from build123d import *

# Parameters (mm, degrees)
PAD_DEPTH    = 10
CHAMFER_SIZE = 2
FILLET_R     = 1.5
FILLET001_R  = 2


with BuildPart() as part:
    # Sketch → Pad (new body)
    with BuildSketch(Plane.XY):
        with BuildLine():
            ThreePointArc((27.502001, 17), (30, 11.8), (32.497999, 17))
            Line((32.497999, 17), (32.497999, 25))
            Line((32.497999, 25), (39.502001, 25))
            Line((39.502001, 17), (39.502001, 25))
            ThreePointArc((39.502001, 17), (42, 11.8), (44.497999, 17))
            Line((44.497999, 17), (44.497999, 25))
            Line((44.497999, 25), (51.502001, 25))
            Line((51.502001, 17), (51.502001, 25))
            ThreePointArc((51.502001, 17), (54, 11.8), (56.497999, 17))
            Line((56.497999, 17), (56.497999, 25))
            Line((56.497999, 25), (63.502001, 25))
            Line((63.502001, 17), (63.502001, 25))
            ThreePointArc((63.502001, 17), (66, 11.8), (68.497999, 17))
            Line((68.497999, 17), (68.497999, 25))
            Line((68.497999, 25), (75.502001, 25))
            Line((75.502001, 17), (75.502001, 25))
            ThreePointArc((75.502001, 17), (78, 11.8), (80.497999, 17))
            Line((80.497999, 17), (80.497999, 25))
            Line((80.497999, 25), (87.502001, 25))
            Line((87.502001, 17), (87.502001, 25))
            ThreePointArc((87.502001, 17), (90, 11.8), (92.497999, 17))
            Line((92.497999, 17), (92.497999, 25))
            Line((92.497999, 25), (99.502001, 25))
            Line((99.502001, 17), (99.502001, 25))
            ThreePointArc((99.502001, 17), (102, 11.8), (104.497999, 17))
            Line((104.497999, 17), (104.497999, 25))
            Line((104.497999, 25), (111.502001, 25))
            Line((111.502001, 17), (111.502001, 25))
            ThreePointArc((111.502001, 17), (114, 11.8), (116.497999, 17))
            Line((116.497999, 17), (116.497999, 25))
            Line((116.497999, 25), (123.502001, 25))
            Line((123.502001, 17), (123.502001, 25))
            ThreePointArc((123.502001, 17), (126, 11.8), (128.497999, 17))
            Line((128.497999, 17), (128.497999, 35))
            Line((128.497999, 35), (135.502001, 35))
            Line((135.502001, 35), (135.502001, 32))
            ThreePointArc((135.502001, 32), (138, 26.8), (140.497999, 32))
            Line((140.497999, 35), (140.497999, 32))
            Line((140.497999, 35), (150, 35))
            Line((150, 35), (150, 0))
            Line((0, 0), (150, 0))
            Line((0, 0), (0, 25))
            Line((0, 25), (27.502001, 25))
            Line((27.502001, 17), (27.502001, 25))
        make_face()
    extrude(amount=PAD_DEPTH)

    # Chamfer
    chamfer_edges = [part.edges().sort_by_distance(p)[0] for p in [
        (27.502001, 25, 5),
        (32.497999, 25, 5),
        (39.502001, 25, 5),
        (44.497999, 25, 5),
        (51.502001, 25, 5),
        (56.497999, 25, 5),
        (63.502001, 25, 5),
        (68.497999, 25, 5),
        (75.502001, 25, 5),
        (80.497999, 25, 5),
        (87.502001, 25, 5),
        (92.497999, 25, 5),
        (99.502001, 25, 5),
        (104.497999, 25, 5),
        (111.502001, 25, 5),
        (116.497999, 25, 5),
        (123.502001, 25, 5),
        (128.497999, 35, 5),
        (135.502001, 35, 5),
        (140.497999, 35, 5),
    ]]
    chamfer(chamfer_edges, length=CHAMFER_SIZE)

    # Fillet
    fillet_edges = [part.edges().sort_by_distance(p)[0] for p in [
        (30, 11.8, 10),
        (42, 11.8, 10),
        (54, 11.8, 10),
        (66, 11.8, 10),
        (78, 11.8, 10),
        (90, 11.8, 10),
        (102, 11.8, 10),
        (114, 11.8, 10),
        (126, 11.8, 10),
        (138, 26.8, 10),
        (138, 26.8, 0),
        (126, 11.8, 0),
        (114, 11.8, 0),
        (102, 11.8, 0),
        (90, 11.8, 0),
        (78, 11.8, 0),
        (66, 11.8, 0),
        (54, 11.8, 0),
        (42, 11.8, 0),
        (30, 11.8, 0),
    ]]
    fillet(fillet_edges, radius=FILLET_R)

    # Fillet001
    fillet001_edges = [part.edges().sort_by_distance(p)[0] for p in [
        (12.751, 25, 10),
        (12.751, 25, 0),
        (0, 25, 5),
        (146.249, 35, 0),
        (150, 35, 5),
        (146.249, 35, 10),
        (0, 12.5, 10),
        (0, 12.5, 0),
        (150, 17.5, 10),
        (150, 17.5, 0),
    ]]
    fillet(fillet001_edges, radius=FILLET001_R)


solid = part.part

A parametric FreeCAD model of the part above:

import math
import FreeCAD as App
import Part
import Sketcher
Q = App.Units.Quantity


def edges_at(feature, points):
    """Names of the edges that pass closest to the given points."""
    edges = feature.Shape.Edges
    near = lambda p: min(range(len(edges)), key=lambda i: edges[i].distToShape(Part.Vertex(*p))[0])
    return sorted({f"Edge{near(p) + 1}" for p in points})

doc = App.newDocument("Part")
body = doc.addObject("PartDesign::Body", "Body")

sketch1 = body.newObject("Sketcher::SketchObject", "Sketch")
sketch1.AttachmentSupport = (doc.getObject("XY_Plane"), [""])
sketch1.MapMode = "FlatFace"
sketch1.addGeometry([
    Part.ArcOfCircle(Part.Circle(App.Vector(30, 15, 0), App.Vector(0, 0, 1), 3.2), math.radians(141), math.radians(399)),
    Part.LineSegment(App.Vector(27.5, 17, 0), App.Vector(27.5, 25, 0)),
    Part.LineSegment(App.Vector(27.5, 25, 0), App.Vector(0, 25, 0)),
    Part.LineSegment(App.Vector(0, 25, 0), App.Vector(0, 0, 0)),
    Part.LineSegment(App.Vector(0, 0, 0), App.Vector(150, 0, 0)),
    Part.LineSegment(App.Vector(150, 0, 0), App.Vector(150, 35, 0)),
    Part.LineSegment(App.Vector(150, 35, 0), App.Vector(140.5, 35, 0)),
    Part.LineSegment(App.Vector(140.5, 35, 0), App.Vector(140.5, 32, 0)),
    Part.ArcOfCircle(Part.Circle(App.Vector(138, 30, 0), App.Vector(0, 0, 1), 3.2), math.radians(141), math.radians(399)),
    Part.LineSegment(App.Vector(135.5, 32, 0), App.Vector(135.5, 35, 0)),
    Part.LineSegment(App.Vector(135.5, 35, 0), App.Vector(128.5, 35, 0)),
    Part.LineSegment(App.Vector(128.5, 35, 0), App.Vector(128.5, 17, 0)),
    Part.ArcOfCircle(Part.Circle(App.Vector(126, 15, 0), App.Vector(0, 0, 1), 3.2), math.radians(141), math.radians(399)),
    Part.LineSegment(App.Vector(123.5, 17, 0), App.Vector(123.5, 25, 0)),
    Part.LineSegment(App.Vector(123.5, 25, 0), App.Vector(116.5, 25, 0)),
    Part.LineSegment(App.Vector(116.5, 25, 0), App.Vector(116.5, 17, 0)),
    Part.ArcOfCircle(Part.Circle(App.Vector(114, 15, 0), App.Vector(0, 0, 1), 3.2), math.radians(141), math.radians(399)),
    Part.LineSegment(App.Vector(111.5, 17, 0), App.Vector(111.5, 25, 0)),
    Part.LineSegment(App.Vector(111.5, 25, 0), App.Vector(104.5, 25, 0)),
    Part.LineSegment(App.Vector(104.5, 25, 0), App.Vector(104.5, 17, 0)),
    Part.ArcOfCircle(Part.Circle(App.Vector(102, 15, 0), App.Vector(0, 0, 1), 3.2), math.radians(141), math.radians(399)),
    Part.LineSegment(App.Vector(99.5, 17, 0), App.Vector(99.5, 25, 0)),
    Part.LineSegment(App.Vector(99.5, 25, 0), App.Vector(92.5, 25, 0)),
    Part.LineSegment(App.Vector(92.5, 25, 0), App.Vector(92.5, 17, 0)),
    Part.ArcOfCircle(Part.Circle(App.Vector(90, 15, 0), App.Vector(0, 0, 1), 3.2), math.radians(141), math.radians(399)),
    Part.LineSegment(App.Vector(87.5, 17, 0), App.Vector(87.5, 25, 0)),
    Part.LineSegment(App.Vector(87.5, 25, 0), App.Vector(80.5, 25, 0)),
    Part.LineSegment(App.Vector(80.5, 25, 0), App.Vector(80.5, 17, 0)),
    Part.ArcOfCircle(Part.Circle(App.Vector(78, 15, 0), App.Vector(0, 0, 1), 3.2), math.radians(141), math.radians(399)),
    Part.LineSegment(App.Vector(75.5, 17, 0), App.Vector(75.5, 25, 0)),
    Part.LineSegment(App.Vector(75.5, 25, 0), App.Vector(68.5, 25, 0)),
    Part.LineSegment(App.Vector(68.5, 25, 0), App.Vector(68.5, 17, 0)),
    Part.ArcOfCircle(Part.Circle(App.Vector(66, 15, 0), App.Vector(0, 0, 1), 3.2), math.radians(141), math.radians(399)),
    Part.LineSegment(App.Vector(63.5, 17, 0), App.Vector(63.5, 25, 0)),
    Part.LineSegment(App.Vector(63.5, 25, 0), App.Vector(56.5, 25, 0)),
    Part.LineSegment(App.Vector(56.5, 25, 0), App.Vector(56.5, 17, 0)),
    Part.ArcOfCircle(Part.Circle(App.Vector(54, 15, 0), App.Vector(0, 0, 1), 3.2), math.radians(141), math.radians(399)),
    Part.LineSegment(App.Vector(51.5, 17, 0), App.Vector(51.5, 25, 0)),
    Part.LineSegment(App.Vector(51.5, 25, 0), App.Vector(44.5, 25, 0)),
    Part.LineSegment(App.Vector(44.5, 25, 0), App.Vector(44.5, 17, 0)),
    Part.ArcOfCircle(Part.Circle(App.Vector(42, 15, 0), App.Vector(0, 0, 1), 3.2), math.radians(141), math.radians(399)),
    Part.LineSegment(App.Vector(39.5, 17, 0), App.Vector(39.5, 25, 0)),
    Part.LineSegment(App.Vector(39.5, 25, 0), App.Vector(32.5, 25, 0)),
    Part.LineSegment(App.Vector(32.5, 25, 0), App.Vector(32.5, 17, 0)),
], False)
sketch1.addConstraint([
    Sketcher.Constraint("Coincident", 0, 1, 1, 1),
    Sketcher.Constraint("Coincident", 1, 2, 2, 1),
    Sketcher.Constraint("Coincident", 2, 2, 3, 1),
    Sketcher.Constraint("Coincident", 3, 2, 4, 1),
    Sketcher.Constraint("Coincident", 4, 2, 5, 1),
    Sketcher.Constraint("Coincident", 5, 2, 6, 1),
    Sketcher.Constraint("Coincident", 6, 2, 7, 1),
    Sketcher.Constraint("Coincident", 7, 2, 8, 2),
    Sketcher.Constraint("Coincident", 8, 1, 9, 1),
    Sketcher.Constraint("Coincident", 9, 2, 10, 1),
    Sketcher.Constraint("Coincident", 10, 2, 11, 1),
    Sketcher.Constraint("Coincident", 11, 2, 12, 2),
    Sketcher.Constraint("Coincident", 12, 1, 13, 1),
    Sketcher.Constraint("Coincident", 13, 2, 14, 1),
    Sketcher.Constraint("Coincident", 14, 2, 15, 1),
    Sketcher.Constraint("Coincident", 15, 2, 16, 2),
    Sketcher.Constraint("Coincident", 16, 1, 17, 1),
    Sketcher.Constraint("Coincident", 17, 2, 18, 1),
    Sketcher.Constraint("Coincident", 18, 2, 19, 1),
    Sketcher.Constraint("Coincident", 19, 2, 20, 2),
    Sketcher.Constraint("Coincident", 20, 1, 21, 1),
    Sketcher.Constraint("Coincident", 21, 2, 22, 1),
    Sketcher.Constraint("Coincident", 22, 2, 23, 1),
    Sketcher.Constraint("Coincident", 23, 2, 24, 2),
    Sketcher.Constraint("Coincident", 24, 1, 25, 1),
    Sketcher.Constraint("Coincident", 25, 2, 26, 1),
    Sketcher.Constraint("Coincident", 26, 2, 27, 1),
    Sketcher.Constraint("Coincident", 27, 2, 28, 2),
    Sketcher.Constraint("Coincident", 28, 1, 29, 1),
    Sketcher.Constraint("Coincident", 29, 2, 30, 1),
    Sketcher.Constraint("Coincident", 30, 2, 31, 1),
    Sketcher.Constraint("Coincident", 31, 2, 32, 2),
    Sketcher.Constraint("Coincident", 32, 1, 33, 1),
    Sketcher.Constraint("Coincident", 33, 2, 34, 1),
    Sketcher.Constraint("Coincident", 34, 2, 35, 1),
    Sketcher.Constraint("Coincident", 35, 2, 36, 2),
    Sketcher.Constraint("Coincident", 36, 1, 37, 1),
    Sketcher.Constraint("Coincident", 37, 2, 38, 1),
    Sketcher.Constraint("Coincident", 38, 2, 39, 1),
    Sketcher.Constraint("Coincident", 39, 2, 40, 2),
    Sketcher.Constraint("Coincident", 40, 1, 41, 1),
    Sketcher.Constraint("Coincident", 41, 2, 42, 1),
    Sketcher.Constraint("Coincident", 42, 2, 43, 1),
    Sketcher.Constraint("Coincident", 43, 2, 0, 2),
    Sketcher.Constraint("Vertical", 1),
    Sketcher.Constraint("Horizontal", 2),
    Sketcher.Constraint("Vertical", 3),
    Sketcher.Constraint("Horizontal", 4),
    Sketcher.Constraint("Vertical", 5),
    Sketcher.Constraint("Horizontal", 6),
    Sketcher.Constraint("Vertical", 7),
    Sketcher.Constraint("Vertical", 9),
    Sketcher.Constraint("Horizontal", 10),
    Sketcher.Constraint("Vertical", 11),
    Sketcher.Constraint("Vertical", 13),
    Sketcher.Constraint("Horizontal", 14),
    Sketcher.Constraint("Vertical", 15),
    Sketcher.Constraint("Vertical", 17),
    Sketcher.Constraint("Horizontal", 18),
    Sketcher.Constraint("Vertical", 19),
    Sketcher.Constraint("Vertical", 21),
    Sketcher.Constraint("Horizontal", 22),
    Sketcher.Constraint("Vertical", 23),
    Sketcher.Constraint("Vertical", 25),
    Sketcher.Constraint("Horizontal", 26),
    Sketcher.Constraint("Vertical", 27),
    Sketcher.Constraint("Vertical", 29),
    Sketcher.Constraint("Horizontal", 30),
    Sketcher.Constraint("Vertical", 31),
    Sketcher.Constraint("Vertical", 33),
    Sketcher.Constraint("Horizontal", 34),
    Sketcher.Constraint("Vertical", 35),
    Sketcher.Constraint("Vertical", 37),
    Sketcher.Constraint("Horizontal", 38),
    Sketcher.Constraint("Vertical", 39),
    Sketcher.Constraint("Vertical", 41),
    Sketcher.Constraint("Horizontal", 42),
    Sketcher.Constraint("Vertical", 43),
    Sketcher.Constraint("Coincident", 3, 2, -1, 1),
    Sketcher.Constraint("Equal", 0, 8),
    Sketcher.Constraint("Equal", 8, 12),
    Sketcher.Constraint("Equal", 12, 16),
    Sketcher.Constraint("Equal", 16, 20),
    Sketcher.Constraint("Equal", 20, 24),
    Sketcher.Constraint("Equal", 24, 28),
    Sketcher.Constraint("Equal", 28, 32),
    Sketcher.Constraint("Equal", 32, 36),
    Sketcher.Constraint("Equal", 36, 40),
    Sketcher.Constraint("Horizontal", 0, 3, 12, 3),
    Sketcher.Constraint("Horizontal", 12, 3, 16, 3),
    Sketcher.Constraint("Horizontal", 16, 3, 20, 3),
    Sketcher.Constraint("Horizontal", 20, 3, 24, 3),
    Sketcher.Constraint("Horizontal", 24, 3, 28, 3),
    Sketcher.Constraint("Horizontal", 28, 3, 32, 3),
    Sketcher.Constraint("Horizontal", 32, 3, 36, 3),
    Sketcher.Constraint("Horizontal", 36, 3, 40, 3),
    Sketcher.Constraint("Horizontal", 7, 2, 8, 1),
    Sketcher.Constraint("Horizontal", 6, 2, 9, 2),
    Sketcher.Constraint("Horizontal", 0, 1, 11, 2),
    Sketcher.Constraint("Horizontal", 11, 2, 12, 1),
    Sketcher.Constraint("Horizontal", 2, 2, 13, 2),
    Sketcher.Constraint("Horizontal", 12, 1, 15, 2),
    Sketcher.Constraint("Horizontal", 15, 2, 16, 1),
    Sketcher.Constraint("Horizontal", 14, 2, 17, 2),
    Sketcher.Constraint("Horizontal", 16, 1, 19, 2),
    Sketcher.Constraint("Horizontal", 19, 2, 20, 1),
    Sketcher.Constraint("Horizontal", 18, 2, 21, 2),
    Sketcher.Constraint("Horizontal", 20, 1, 23, 2),
    Sketcher.Constraint("Horizontal", 23, 2, 24, 1),
    Sketcher.Constraint("Horizontal", 22, 2, 25, 2),
    Sketcher.Constraint("Horizontal", 24, 1, 27, 2),
    Sketcher.Constraint("Horizontal", 27, 2, 28, 1),
    Sketcher.Constraint("Horizontal", 26, 2, 29, 2),
    Sketcher.Constraint("Horizontal", 28, 1, 31, 2),
    Sketcher.Constraint("Horizontal", 31, 2, 32, 1),
    Sketcher.Constraint("Horizontal", 30, 2, 33, 2),
    Sketcher.Constraint("Horizontal", 32, 1, 35, 2),
    Sketcher.Constraint("Horizontal", 35, 2, 36, 1),
    Sketcher.Constraint("Horizontal", 34, 2, 37, 2),
    Sketcher.Constraint("Horizontal", 36, 1, 39, 2),
    Sketcher.Constraint("Horizontal", 39, 2, 40, 1),
    Sketcher.Constraint("Horizontal", 38, 2, 41, 2),
    Sketcher.Constraint("Horizontal", 40, 1, 43, 2),
    Sketcher.Constraint("Equal", 10, 14),
    Sketcher.Constraint("Equal", 14, 18),
    Sketcher.Constraint("Equal", 18, 22),
    Sketcher.Constraint("Equal", 22, 26),
    Sketcher.Constraint("Equal", 26, 30),
    Sketcher.Constraint("Equal", 30, 34),
    Sketcher.Constraint("Equal", 34, 38),
    Sketcher.Constraint("Equal", 38, 42),
    Sketcher.Constraint("Radius", 0, Q("3.2 mm")),
    Sketcher.Constraint("DistanceX", 4, 1, 4, 2, Q("150 mm")),
    Sketcher.Constraint("DistanceY", 1, 1, 1, 2, Q("8 mm")),
    Sketcher.Constraint("DistanceY", 3, 2, 3, 1, Q("25 mm")),
    Sketcher.Constraint("DistanceY", 5, 1, 5, 2, Q("35 mm")),
    Sketcher.Constraint("DistanceY", 7, 2, 7, 1, Q("3 mm")),
    Sketcher.Constraint("DistanceX", -1, 1, 0, 3, Q("30 mm")),
    Sketcher.Constraint("DistanceY", -1, 1, 0, 3, Q("15 mm")),
    Sketcher.Constraint("DistanceX", -1, 1, 8, 3, Q("138 mm")),
    Sketcher.Constraint("DistanceY", -1, 1, 8, 3, Q("30 mm")),
])
pad1 = body.newObject("PartDesign::Pad", "Pad")
pad1.Profile = sketch1
pad1.Length = 10
doc.recompute()

chamfer = body.newObject("PartDesign::Chamfer", "Chamfer")
chamfer.Base = (pad1, edges_at(pad1, [
    (27.502, 25, 5),
    (32.498, 25, 5),
    (39.502, 25, 5),
    (44.498, 25, 5),
    (51.502, 25, 5),
    (56.498, 25, 5),
    (63.502, 25, 5),
    (68.498, 25, 5),
    (75.502, 25, 5),
    (80.498, 25, 5),
    (87.502, 25, 5),
    (92.498, 25, 5),
    (99.502, 25, 5),
    (104.498, 25, 5),
    (111.502, 25, 5),
    (116.498, 25, 5),
    (123.502, 25, 5),
    (128.498, 35, 5),
    (135.502, 35, 5),
    (140.498, 35, 5),
]))
chamfer.Size = 2
doc.recompute()

fillet = body.newObject("PartDesign::Fillet", "Fillet")
fillet.Base = (chamfer, edges_at(chamfer, [
    (30, 11.8, 10),
    (42, 11.8, 10),
    (54, 11.8, 10),
    (66, 11.8, 10),
    (78, 11.8, 10),
    (90, 11.8, 10),
    (102, 11.8, 10),
    (114, 11.8, 10),
    (126, 11.8, 10),
    (138, 26.8, 10),
    (138, 26.8, 0),
    (126, 11.8, 0),
    (114, 11.8, 0),
    (102, 11.8, 0),
    (90, 11.8, 0),
    (78, 11.8, 0),
    (66, 11.8, 0),
    (54, 11.8, 0),
    (42, 11.8, 0),
    (30, 11.8, 0),
]))
fillet.Radius = 1.5
doc.recompute()

fillet2 = body.newObject("PartDesign::Fillet", "Fillet001")
fillet2.Base = (fillet, edges_at(fillet, [
    (12.751, 25, 10),
    (12.751, 25, 0),
    (0, 25, 5),
    (146.249, 35, 0),
    (150, 35, 5),
    (146.249, 35, 10),
    (0, 12.5, 10),
    (0, 12.5, 0),
    (150, 17.5, 10),
    (150, 17.5, 0),
]))
fillet2.Radius = 2

doc.recompute()
